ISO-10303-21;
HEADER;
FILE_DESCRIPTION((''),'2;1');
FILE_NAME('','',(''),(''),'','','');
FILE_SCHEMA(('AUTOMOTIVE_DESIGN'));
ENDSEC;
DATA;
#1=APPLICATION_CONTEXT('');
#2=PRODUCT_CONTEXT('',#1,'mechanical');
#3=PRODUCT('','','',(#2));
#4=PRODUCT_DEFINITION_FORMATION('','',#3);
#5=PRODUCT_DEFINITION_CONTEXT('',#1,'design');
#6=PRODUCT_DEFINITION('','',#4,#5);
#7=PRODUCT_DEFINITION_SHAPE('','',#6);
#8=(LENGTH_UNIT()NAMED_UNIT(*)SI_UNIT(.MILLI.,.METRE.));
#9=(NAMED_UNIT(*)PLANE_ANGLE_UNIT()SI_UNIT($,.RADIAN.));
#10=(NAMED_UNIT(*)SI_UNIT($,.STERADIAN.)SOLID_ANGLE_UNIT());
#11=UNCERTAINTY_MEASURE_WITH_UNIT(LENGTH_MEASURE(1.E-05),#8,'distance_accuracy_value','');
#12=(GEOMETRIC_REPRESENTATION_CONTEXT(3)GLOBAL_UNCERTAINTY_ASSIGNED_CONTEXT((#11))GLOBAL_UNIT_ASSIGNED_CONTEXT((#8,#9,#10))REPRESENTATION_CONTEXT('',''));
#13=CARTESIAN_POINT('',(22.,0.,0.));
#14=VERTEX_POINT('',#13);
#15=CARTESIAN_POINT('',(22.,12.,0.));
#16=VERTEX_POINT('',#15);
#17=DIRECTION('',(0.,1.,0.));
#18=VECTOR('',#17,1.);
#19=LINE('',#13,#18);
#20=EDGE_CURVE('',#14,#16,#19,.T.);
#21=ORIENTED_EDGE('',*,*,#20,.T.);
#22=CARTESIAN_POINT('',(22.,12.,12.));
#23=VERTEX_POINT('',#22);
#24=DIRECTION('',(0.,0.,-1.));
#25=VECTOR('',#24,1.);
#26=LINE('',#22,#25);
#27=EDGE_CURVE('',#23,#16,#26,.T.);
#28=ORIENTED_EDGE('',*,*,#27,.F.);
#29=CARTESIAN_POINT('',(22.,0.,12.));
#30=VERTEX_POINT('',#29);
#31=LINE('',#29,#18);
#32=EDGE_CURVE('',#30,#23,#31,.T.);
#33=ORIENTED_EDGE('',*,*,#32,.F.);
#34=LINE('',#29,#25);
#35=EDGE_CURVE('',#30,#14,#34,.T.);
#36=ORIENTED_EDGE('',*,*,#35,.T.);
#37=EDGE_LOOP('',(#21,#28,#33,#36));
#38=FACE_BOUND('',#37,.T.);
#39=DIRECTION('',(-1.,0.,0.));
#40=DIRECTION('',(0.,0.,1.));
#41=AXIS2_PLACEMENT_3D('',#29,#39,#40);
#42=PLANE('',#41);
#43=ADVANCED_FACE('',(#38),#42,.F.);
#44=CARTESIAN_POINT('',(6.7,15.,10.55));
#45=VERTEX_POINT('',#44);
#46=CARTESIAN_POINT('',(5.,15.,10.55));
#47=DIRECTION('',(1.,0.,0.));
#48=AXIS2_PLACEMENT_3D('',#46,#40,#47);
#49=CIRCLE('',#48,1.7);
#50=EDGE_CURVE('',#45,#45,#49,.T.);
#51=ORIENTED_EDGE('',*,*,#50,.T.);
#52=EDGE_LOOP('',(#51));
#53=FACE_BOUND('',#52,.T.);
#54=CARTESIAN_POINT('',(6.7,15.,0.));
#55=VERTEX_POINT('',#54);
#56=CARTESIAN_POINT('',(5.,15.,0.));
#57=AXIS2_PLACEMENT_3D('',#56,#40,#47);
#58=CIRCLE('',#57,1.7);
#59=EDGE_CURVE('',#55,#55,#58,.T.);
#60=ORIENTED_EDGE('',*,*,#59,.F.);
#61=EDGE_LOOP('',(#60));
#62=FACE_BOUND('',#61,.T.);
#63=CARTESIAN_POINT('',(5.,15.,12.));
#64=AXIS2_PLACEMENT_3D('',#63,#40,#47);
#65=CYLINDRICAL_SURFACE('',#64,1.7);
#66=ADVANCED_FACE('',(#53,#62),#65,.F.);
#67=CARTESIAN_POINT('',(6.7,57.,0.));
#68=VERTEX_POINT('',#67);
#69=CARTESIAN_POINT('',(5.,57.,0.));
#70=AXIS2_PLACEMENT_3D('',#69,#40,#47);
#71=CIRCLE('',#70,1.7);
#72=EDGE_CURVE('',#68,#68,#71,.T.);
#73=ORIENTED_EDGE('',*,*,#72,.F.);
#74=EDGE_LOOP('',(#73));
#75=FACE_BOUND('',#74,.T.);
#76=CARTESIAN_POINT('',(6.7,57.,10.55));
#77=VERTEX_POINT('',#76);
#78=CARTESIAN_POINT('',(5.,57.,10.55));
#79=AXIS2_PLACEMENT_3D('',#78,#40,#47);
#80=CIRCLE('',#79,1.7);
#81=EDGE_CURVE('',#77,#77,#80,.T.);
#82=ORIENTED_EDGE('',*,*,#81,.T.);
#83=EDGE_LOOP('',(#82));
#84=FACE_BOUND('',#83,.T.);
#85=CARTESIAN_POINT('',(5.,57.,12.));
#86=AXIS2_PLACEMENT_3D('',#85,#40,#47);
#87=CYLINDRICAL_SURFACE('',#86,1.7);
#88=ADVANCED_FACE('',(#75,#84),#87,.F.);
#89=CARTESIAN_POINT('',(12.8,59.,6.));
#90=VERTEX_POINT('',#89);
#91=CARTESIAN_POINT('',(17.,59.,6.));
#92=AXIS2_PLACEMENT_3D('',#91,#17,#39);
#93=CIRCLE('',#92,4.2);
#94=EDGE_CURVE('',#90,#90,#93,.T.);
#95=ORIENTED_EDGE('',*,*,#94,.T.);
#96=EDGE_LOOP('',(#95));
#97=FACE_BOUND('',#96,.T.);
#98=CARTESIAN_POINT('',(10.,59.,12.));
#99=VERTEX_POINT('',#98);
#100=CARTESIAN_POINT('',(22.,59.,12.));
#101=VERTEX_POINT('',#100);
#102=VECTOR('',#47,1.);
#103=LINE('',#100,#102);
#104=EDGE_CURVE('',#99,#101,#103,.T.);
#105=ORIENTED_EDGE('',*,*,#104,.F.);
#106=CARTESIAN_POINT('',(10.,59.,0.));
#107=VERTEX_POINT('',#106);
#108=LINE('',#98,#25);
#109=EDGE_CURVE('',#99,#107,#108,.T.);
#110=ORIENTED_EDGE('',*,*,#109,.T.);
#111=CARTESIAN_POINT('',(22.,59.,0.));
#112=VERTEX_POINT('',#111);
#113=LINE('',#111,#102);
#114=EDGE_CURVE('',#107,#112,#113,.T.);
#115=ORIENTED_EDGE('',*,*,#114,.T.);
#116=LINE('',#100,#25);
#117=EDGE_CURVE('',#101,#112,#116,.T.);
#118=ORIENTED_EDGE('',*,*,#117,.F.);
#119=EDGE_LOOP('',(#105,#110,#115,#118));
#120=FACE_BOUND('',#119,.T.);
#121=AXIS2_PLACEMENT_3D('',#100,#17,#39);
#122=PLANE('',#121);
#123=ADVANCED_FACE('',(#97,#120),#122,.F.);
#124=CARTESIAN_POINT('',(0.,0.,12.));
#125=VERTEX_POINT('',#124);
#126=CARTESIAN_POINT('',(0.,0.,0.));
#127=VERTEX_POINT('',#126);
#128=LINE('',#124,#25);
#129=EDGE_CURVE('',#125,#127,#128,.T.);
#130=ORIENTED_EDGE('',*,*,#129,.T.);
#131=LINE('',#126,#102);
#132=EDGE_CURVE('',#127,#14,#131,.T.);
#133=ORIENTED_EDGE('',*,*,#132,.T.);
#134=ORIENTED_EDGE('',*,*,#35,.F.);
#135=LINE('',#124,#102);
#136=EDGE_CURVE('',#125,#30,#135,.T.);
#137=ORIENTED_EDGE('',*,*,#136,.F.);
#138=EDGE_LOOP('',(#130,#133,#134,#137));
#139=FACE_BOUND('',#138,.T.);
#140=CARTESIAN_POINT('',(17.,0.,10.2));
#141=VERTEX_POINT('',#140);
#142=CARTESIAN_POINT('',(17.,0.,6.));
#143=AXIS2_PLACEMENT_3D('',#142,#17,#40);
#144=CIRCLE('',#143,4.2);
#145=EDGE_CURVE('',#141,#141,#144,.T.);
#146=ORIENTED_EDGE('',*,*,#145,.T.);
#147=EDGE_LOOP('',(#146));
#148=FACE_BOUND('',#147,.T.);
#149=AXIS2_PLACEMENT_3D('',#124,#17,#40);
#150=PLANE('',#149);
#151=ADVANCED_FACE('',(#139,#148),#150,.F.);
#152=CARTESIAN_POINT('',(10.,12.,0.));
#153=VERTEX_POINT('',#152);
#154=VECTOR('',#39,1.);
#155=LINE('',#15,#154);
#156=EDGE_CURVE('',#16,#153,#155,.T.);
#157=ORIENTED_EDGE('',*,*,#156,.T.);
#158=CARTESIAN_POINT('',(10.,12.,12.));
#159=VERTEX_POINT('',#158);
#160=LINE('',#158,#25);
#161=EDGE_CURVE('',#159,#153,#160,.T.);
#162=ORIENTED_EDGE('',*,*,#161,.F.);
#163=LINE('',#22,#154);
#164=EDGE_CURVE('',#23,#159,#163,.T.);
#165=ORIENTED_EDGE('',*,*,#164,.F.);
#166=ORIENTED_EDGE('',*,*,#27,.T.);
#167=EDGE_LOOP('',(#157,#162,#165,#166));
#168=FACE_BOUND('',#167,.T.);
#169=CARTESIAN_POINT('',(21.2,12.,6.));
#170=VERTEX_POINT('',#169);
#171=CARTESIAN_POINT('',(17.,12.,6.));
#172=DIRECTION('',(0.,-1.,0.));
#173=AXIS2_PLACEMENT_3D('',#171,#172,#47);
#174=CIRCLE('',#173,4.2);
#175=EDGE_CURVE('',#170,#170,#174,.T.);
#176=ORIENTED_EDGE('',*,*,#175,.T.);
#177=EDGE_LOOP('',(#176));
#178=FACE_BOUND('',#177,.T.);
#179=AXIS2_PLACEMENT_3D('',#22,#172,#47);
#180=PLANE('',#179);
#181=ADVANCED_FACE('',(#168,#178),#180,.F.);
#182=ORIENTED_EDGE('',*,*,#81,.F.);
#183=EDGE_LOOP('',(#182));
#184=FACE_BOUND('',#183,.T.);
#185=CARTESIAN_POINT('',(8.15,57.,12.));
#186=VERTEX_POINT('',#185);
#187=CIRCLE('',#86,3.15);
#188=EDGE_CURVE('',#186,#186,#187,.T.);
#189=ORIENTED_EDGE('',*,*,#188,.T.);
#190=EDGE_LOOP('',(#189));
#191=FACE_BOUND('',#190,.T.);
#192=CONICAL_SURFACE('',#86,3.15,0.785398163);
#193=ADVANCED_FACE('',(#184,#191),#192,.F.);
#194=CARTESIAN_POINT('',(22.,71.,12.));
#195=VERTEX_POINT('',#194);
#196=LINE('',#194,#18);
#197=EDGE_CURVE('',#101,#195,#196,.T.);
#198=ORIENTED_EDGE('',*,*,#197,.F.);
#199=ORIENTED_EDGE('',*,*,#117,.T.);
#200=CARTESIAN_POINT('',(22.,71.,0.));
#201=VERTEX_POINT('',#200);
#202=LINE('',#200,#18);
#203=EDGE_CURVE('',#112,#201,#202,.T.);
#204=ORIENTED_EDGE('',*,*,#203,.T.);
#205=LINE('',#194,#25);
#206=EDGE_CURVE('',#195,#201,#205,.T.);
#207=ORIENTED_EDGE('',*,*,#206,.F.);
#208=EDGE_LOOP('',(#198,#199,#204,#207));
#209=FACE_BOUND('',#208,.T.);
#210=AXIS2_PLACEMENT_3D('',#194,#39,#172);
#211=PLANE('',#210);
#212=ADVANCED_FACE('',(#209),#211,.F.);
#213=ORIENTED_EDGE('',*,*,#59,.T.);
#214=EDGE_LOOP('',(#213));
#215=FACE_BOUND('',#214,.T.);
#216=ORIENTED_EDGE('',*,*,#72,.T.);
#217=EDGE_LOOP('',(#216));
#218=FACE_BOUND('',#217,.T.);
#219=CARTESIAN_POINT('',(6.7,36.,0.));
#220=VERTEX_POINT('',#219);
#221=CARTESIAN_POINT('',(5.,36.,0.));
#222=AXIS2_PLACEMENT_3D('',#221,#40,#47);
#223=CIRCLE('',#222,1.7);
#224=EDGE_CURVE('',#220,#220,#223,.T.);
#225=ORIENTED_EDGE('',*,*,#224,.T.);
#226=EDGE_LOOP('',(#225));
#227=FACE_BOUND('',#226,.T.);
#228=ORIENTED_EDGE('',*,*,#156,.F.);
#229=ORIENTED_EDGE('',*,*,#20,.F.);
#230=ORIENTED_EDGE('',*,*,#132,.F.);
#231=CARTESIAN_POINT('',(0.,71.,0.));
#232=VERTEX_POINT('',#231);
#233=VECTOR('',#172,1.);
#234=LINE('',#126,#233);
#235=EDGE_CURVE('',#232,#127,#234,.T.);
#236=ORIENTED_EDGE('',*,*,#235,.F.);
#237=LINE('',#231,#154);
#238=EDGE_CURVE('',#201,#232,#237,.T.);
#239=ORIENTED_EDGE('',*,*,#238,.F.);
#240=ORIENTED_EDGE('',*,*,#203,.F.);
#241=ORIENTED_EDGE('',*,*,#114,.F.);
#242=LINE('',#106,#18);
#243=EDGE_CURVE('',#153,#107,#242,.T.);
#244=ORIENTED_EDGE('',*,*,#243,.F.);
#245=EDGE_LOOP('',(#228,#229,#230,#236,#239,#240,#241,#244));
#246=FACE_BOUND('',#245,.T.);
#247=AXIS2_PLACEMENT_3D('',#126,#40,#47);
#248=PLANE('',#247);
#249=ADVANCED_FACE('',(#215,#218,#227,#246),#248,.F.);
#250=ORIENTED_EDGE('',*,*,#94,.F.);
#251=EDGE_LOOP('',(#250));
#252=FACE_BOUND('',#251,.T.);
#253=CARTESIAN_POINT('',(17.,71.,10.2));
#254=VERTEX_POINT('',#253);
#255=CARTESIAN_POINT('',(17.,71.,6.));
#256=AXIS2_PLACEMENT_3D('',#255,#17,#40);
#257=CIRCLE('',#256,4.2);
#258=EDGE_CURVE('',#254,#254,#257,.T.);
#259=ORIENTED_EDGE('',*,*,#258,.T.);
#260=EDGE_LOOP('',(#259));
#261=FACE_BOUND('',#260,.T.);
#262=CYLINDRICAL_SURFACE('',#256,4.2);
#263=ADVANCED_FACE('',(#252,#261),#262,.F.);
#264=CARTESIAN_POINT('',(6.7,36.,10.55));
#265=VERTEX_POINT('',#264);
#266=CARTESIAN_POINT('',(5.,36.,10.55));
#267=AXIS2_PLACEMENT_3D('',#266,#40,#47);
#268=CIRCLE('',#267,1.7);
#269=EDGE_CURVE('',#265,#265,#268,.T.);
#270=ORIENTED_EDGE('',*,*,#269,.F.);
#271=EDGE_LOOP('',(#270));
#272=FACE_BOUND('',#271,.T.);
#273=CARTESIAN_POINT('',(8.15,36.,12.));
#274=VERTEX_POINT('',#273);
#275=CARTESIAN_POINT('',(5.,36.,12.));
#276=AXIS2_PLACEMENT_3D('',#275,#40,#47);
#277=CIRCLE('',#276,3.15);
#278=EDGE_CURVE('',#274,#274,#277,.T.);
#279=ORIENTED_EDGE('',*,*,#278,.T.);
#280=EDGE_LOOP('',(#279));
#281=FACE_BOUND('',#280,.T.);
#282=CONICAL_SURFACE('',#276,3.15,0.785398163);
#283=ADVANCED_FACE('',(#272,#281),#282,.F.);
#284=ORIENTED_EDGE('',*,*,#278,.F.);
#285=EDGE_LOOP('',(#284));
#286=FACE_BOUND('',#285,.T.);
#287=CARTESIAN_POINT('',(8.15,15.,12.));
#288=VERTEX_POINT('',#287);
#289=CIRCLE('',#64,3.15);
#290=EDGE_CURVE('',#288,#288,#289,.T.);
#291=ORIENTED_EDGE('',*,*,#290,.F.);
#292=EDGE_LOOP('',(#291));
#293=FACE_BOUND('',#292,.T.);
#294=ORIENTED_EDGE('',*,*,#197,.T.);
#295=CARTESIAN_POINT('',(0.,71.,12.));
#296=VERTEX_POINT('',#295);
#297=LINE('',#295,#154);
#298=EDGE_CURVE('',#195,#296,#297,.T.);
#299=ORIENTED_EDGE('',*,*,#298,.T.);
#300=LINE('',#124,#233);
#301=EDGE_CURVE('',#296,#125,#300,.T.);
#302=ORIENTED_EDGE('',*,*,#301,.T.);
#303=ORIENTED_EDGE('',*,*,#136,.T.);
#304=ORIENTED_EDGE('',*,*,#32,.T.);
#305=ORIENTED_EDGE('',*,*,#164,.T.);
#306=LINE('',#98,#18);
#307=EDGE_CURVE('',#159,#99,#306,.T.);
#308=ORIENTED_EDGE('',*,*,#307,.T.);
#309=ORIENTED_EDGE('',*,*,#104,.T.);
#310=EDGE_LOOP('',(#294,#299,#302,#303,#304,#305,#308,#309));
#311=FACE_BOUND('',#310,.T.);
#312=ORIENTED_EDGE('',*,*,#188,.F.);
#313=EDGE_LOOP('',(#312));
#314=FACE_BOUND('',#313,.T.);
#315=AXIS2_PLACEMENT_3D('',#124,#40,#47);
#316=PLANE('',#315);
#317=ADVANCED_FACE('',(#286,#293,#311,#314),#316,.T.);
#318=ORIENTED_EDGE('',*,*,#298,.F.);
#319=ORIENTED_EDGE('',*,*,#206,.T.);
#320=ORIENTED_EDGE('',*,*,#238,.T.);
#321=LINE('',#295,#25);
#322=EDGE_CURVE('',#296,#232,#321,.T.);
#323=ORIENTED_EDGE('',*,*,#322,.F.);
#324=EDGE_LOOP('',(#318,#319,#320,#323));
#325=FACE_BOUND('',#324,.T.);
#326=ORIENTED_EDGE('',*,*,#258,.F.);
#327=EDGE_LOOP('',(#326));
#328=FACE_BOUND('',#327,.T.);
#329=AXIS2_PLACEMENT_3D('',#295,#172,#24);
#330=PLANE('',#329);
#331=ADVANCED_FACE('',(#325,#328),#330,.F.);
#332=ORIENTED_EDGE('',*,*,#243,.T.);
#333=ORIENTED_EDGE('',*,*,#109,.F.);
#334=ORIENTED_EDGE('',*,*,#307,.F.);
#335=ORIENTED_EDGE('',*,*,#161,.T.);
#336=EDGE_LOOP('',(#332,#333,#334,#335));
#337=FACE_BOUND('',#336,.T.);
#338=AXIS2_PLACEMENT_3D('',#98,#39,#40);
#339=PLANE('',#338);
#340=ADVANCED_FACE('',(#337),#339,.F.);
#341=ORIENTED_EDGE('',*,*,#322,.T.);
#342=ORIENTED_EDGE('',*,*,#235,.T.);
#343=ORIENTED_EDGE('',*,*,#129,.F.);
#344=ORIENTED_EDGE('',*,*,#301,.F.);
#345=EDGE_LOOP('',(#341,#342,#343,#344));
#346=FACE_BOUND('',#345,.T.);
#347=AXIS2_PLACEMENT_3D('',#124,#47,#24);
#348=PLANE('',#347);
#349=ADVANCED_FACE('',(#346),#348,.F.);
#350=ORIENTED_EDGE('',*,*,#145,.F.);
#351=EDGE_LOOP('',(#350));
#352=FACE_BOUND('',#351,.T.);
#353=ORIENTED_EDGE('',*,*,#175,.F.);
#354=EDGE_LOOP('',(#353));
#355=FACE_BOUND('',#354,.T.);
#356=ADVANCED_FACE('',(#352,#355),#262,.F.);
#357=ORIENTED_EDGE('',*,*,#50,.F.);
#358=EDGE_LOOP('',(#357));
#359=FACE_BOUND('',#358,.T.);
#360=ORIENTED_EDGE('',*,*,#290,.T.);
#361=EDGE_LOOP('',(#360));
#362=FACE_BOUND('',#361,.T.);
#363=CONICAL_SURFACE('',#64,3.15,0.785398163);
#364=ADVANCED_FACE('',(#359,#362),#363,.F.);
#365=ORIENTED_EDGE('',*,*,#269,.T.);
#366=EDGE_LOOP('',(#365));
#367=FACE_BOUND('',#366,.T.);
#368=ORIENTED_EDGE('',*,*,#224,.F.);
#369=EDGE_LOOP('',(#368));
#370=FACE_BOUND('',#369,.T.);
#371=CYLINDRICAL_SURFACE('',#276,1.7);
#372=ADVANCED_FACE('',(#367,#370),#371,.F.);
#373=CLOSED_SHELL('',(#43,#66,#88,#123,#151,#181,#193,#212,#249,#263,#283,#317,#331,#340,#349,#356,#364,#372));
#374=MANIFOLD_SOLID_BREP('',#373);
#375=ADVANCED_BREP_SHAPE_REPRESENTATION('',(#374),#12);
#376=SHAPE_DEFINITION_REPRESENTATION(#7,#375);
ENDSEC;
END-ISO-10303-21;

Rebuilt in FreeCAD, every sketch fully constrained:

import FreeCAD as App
import Part
import Sketcher
from FreeCAD import Vector
Q = App.Units.Quantity


def add_polygon(sketch, points):
    """Adds a closed chain of lines whose ends are joined by coincident constraints."""
    first, n = sketch.GeometryCount, len(points)
    for a, b in zip(points, points[1:] + points[:1]):
        sketch.addGeometry(Part.LineSegment(App.Vector(*a, 0), App.Vector(*b, 0)), False)
    for i in range(n):
        sketch.addConstraint(Sketcher.Constraint("Coincident", first + i, 2, first + (i + 1) % n, 1))

doc = App.newDocument("Part")
params = doc.addObject("Spreadsheet::Sheet", "Params")
for row, (alias, value) in enumerate([
    ("sketch1_width", "22 mm"),
    ("sketch1_width2", "12 mm"),
    ("sketch1_height", "71 mm"),
    ("pad1_length", "12 mm"),
    ("sketch2_diameter", "3.4 mm"),
    ("hole_diameter", "3.4 mm"),
    ("hole_csink_diameter", "6.3 mm"),
    ("sketch3_diameter", "8.4 mm"),
    ("hole2_diameter", "8.4 mm"),
], start=1):
    params.set(f"A{row}", alias)
    params.set(f"B{row}", "=" + value)
    params.setAlias(f"B{row}", alias)

body = doc.addObject("PartDesign::Body", "Body")

sketch1 = body.newObject("Sketcher::SketchObject", "Sketch")
sketch1.AttachmentSupport = (doc.getObject("XY_Plane"), [""])
sketch1.MapMode = "FlatFace"
add_polygon(sketch1, [(0, 71), (0, 0), (22, 0), (22, 12), (10, 12), (10, 59), (22, 59), (22, 71)])
sketch1.addConstraint(Sketcher.Constraint("Vertical", 0))
sketch1.addConstraint(Sketcher.Constraint("Horizontal", 1))
sketch1.addConstraint(Sketcher.Constraint("Vertical", 2))
sketch1.addConstraint(Sketcher.Constraint("Horizontal", 3))
sketch1.addConstraint(Sketcher.Constraint("Vertical", 4))
sketch1.addConstraint(Sketcher.Constraint("Horizontal", 5))
sketch1.addConstraint(Sketcher.Constraint("Vertical", 6))
sketch1.addConstraint(Sketcher.Constraint("Horizontal", 7))
sketch1.addConstraint(Sketcher.Constraint("Coincident", 0, 2, -1, 1))
sketch1.addConstraint(Sketcher.Constraint("Vertical", 2, 2, 5, 2))
sketch1.addConstraint(Sketcher.Constraint("Equal", 5, 2))
sketch1.addConstraint(Sketcher.Constraint("Equal", 2, 6))
sketch1.addConstraint(Sketcher.Constraint("DistanceX", 1, 1, 1, 2, Q("22 mm")))
sketch1.addConstraint(Sketcher.Constraint("DistanceX", 3, 2, 3, 1, Q("12 mm")))
sketch1.addConstraint(Sketcher.Constraint("DistanceY", 0, 2, 0, 1, Q("71 mm")))
sketch1.setExpression("Constraints[20]", "Params.sketch1_width")
sketch1.setExpression("Constraints[21]", "Params.sketch1_width2")
sketch1.setExpression("Constraints[22]", "Params.sketch1_height")
pad1 = body.newObject("PartDesign::Pad", "Pad")
pad1.Profile = sketch1
pad1.setExpression("Length", "Params.pad1_length")

sketch2 = body.newObject("Sketcher::SketchObject", "Sketch001")
sketch2.AttachmentSupport = (doc.getObject("XY_Plane"), [""])
sketch2.MapMode = "FlatFace"
sketch2.AttachmentOffset = App.Placement(Vector(0, 0, 12), App.Rotation())
sketch2.addGeometry(Part.Circle(Vector(5, 57, 0), Vector(0, 0, 1), 1.7), False)
sketch2.addGeometry(Part.Circle(Vector(5, 36, 0), Vector(0, 0, 1), 1.7), False)
sketch2.addGeometry(Part.Circle(Vector(5, 15, 0), Vector(0, 0, 1), 1.7), False)
sketch2.addConstraint(Sketcher.Constraint("Equal", 0, 1))
sketch2.addConstraint(Sketcher.Constraint("Equal", 1, 2))
sketch2.addConstraint(Sketcher.Constraint("Vertical", 0, 3, 1, 3))
sketch2.addConstraint(Sketcher.Constraint("Vertical", 1, 3, 2, 3))
sketch2.addConstraint(Sketcher.Constraint("Diameter", 0, Q("3.4 mm")))
sketch2.addConstraint(Sketcher.Constraint("DistanceX", -1, 1, 0, 3, Q("5 mm")))
sketch2.addConstraint(Sketcher.Constraint("DistanceY", -1, 1, 0, 3, Q("57 mm")))
sketch2.addConstraint(Sketcher.Constraint("DistanceY", -1, 1, 1, 3, Q("36 mm")))
sketch2.addConstraint(Sketcher.Constraint("DistanceY", -1, 1, 2, 3, Q("15 mm")))
sketch2.setExpression("Constraints[4]", "Params.sketch2_diameter")
doc.recompute()
hole = body.newObject("PartDesign::Hole", "Hole")
hole.Profile = sketch2
hole.ThreadType = "None"
hole.setExpression("Diameter", "Params.hole_diameter")
hole.DepthType = "ThroughAll"
hole.HoleCutType = "Countersink"
hole.setExpression("HoleCutDiameter", "Params.hole_csink_diameter")
hole.HoleCutCountersinkAngle = 90

sketch3 = body.newObject("Sketcher::SketchObject", "Sketch002")
sketch3.AttachmentSupport = (doc.getObject("XZ_Plane"), [""])
sketch3.MapMode = "FlatFace"
sketch3.AttachmentOffset = App.Placement(Vector(0, 0, -71), App.Rotation())
sketch3.addGeometry(Part.Circle(Vector(17, 6, 0), Vector(0, 0, 1), 4.2), False)
sketch3.addConstraint(Sketcher.Constraint("Diameter", 0, Q("8.4 mm")))
sketch3.addConstraint(Sketcher.Constraint("DistanceX", -1, 1, 0, 3, Q("17 mm")))
sketch3.addConstraint(Sketcher.Constraint("DistanceY", -1, 1, 0, 3, Q("6 mm")))
sketch3.setExpression("Constraints[0]", "Params.sketch3_diameter")
doc.recompute()
hole2 = body.newObject("PartDesign::Hole", "Hole001")
hole2.Profile = sketch3
hole2.ThreadType = "None"
hole2.setExpression("Diameter", "Params.hole2_diameter")
hole2.DepthType = "ThroughAll"
hole2.Reversed = True

doc.recompute()
